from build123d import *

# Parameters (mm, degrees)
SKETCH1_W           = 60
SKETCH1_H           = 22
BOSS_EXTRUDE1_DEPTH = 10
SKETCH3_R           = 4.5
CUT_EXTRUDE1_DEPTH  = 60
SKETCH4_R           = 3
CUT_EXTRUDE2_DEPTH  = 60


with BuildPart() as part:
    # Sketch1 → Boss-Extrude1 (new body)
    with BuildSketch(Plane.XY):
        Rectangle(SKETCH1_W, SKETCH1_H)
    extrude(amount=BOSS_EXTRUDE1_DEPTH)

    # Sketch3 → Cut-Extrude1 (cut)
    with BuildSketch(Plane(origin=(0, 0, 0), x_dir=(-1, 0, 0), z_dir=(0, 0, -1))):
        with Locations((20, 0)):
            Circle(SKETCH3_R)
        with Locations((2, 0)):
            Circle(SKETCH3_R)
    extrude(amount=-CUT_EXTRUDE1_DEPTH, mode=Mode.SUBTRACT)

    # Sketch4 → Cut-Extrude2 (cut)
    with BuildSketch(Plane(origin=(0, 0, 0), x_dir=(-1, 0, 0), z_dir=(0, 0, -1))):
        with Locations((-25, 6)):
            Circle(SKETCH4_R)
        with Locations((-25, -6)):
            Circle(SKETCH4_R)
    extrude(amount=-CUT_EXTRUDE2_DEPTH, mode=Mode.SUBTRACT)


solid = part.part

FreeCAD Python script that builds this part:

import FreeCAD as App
import Part
import Sketcher

V = App.Vector
Q = App.Units.Quantity


def add_polygon(sketch, points):
    """Adds a closed chain of lines whose ends are joined by coincident constraints."""
    first, n = sketch.GeometryCount, len(points)
    for a, b in zip(points, points[1:] + points[:1]):
        sketch.addGeometry(Part.LineSegment(App.Vector(*a, 0), App.Vector(*b, 0)), False)
    for i in range(n):
        sketch.addConstraint(Sketcher.Constraint("Coincident", first + i, 2, first + (i + 1) % n, 1))

doc = App.newDocument("Part")
body = doc.addObject("PartDesign::Body", "Body")

sketch1 = doc.addObject("Sketcher::SketchObject", "Sketch")
body.addObject(sketch1)
sketch1.AttachmentSupport = (doc.XY_Plane, [""])
sketch1.MapMode = "FlatFace"
add_polygon(sketch1, [(-30, 11), (-30, -11), (30, -11), (30, 11)])
sketch1.addConstraint(Sketcher.Constraint("Vertical", 0))
sketch1.addConstraint(Sketcher.Constraint("Horizontal", 1))
sketch1.addConstraint(Sketcher.Constraint("Vertical", 2))
sketch1.addConstraint(Sketcher.Constraint("Horizontal", 3))
sketch1.addConstraint(Sketcher.Constraint("Symmetric", 0, 2, 2, 2, -1, 1))
sketch1.addConstraint(Sketcher.Constraint("DistanceX", 1, 1, 1, 2, Q("60 mm")))
sketch1.addConstraint(Sketcher.Constraint("DistanceY", 0, 2, 0, 1, Q("22 mm")))
pad1 = doc.addObject("PartDesign::Pad", "Pad")
body.addObject(pad1)
pad1.Profile = sketch1
pad1.Length = 10

sketch2 = doc.addObject("Sketcher::SketchObject", "Sketch001")
body.addObject(sketch2)
sketch2.AttachmentSupport = (doc.XY_Plane, [""])
sketch2.MapMode = "FlatFace"
sketch2.addGeometry(Part.Circle(V(-20, 0, 0), V(0, 0, 1), 4.5), False)
sketch2.addGeometry(Part.Circle(V(-2, 0, 0), V(0, 0, 1), 4.5), False)
sketch2.addConstraint(Sketcher.Constraint("Equal", 0, 1))
sketch2.addConstraint(Sketcher.Constraint("PointOnObject", 0, 3, -1))
sketch2.addConstraint(Sketcher.Constraint("PointOnObject", 1, 3, -1))
sketch2.addConstraint(Sketcher.Constraint("Diameter", 0, Q("9 mm")))
sketch2.addConstraint(Sketcher.Constraint("DistanceX", 0, 3, -1, 1, Q("20 mm")))
sketch2.addConstraint(Sketcher.Constraint("DistanceX", 1, 3, -1, 1, Q("2 mm")))
pocket1 = doc.addObject("PartDesign::Pocket", "Pocket")
body.addObject(pocket1)
pocket1.Profile = sketch2
pocket1.Length = 60
pocket1.Reversed = True

sketch3 = doc.addObject("Sketcher::SketchObject", "Sketch002")
body.addObject(sketch3)
sketch3.AttachmentSupport = (doc.XY_Plane, [""])
sketch3.MapMode = "FlatFace"
sketch3.addGeometry(Part.Circle(V(25, 6, 0), V(0, 0, 1), 3), False)
sketch3.addGeometry(Part.Circle(V(25, -6, 0), V(0, 0, 1), 3), False)
sketch3.addConstraint(Sketcher.Constraint("Equal", 0, 1))
sketch3.addConstraint(Sketcher.Constraint("Symmetric", 0, 3, 1, 3, -1))
sketch3.addConstraint(Sketcher.Constraint("Diameter", 0, Q("6 mm")))
sketch3.addConstraint(Sketcher.Constraint("DistanceX", -1, 1, 0, 3, Q("25 mm")))
sketch3.addConstraint(Sketcher.Constraint("DistanceY", -1, 1, 0, 3, Q("6 mm")))
pocket2 = doc.addObject("PartDesign::Pocket", "Pocket001")
body.addObject(pocket2)
pocket2.Profile = sketch3
pocket2.Length = 60
pocket2.Reversed = True

doc.recompute()
